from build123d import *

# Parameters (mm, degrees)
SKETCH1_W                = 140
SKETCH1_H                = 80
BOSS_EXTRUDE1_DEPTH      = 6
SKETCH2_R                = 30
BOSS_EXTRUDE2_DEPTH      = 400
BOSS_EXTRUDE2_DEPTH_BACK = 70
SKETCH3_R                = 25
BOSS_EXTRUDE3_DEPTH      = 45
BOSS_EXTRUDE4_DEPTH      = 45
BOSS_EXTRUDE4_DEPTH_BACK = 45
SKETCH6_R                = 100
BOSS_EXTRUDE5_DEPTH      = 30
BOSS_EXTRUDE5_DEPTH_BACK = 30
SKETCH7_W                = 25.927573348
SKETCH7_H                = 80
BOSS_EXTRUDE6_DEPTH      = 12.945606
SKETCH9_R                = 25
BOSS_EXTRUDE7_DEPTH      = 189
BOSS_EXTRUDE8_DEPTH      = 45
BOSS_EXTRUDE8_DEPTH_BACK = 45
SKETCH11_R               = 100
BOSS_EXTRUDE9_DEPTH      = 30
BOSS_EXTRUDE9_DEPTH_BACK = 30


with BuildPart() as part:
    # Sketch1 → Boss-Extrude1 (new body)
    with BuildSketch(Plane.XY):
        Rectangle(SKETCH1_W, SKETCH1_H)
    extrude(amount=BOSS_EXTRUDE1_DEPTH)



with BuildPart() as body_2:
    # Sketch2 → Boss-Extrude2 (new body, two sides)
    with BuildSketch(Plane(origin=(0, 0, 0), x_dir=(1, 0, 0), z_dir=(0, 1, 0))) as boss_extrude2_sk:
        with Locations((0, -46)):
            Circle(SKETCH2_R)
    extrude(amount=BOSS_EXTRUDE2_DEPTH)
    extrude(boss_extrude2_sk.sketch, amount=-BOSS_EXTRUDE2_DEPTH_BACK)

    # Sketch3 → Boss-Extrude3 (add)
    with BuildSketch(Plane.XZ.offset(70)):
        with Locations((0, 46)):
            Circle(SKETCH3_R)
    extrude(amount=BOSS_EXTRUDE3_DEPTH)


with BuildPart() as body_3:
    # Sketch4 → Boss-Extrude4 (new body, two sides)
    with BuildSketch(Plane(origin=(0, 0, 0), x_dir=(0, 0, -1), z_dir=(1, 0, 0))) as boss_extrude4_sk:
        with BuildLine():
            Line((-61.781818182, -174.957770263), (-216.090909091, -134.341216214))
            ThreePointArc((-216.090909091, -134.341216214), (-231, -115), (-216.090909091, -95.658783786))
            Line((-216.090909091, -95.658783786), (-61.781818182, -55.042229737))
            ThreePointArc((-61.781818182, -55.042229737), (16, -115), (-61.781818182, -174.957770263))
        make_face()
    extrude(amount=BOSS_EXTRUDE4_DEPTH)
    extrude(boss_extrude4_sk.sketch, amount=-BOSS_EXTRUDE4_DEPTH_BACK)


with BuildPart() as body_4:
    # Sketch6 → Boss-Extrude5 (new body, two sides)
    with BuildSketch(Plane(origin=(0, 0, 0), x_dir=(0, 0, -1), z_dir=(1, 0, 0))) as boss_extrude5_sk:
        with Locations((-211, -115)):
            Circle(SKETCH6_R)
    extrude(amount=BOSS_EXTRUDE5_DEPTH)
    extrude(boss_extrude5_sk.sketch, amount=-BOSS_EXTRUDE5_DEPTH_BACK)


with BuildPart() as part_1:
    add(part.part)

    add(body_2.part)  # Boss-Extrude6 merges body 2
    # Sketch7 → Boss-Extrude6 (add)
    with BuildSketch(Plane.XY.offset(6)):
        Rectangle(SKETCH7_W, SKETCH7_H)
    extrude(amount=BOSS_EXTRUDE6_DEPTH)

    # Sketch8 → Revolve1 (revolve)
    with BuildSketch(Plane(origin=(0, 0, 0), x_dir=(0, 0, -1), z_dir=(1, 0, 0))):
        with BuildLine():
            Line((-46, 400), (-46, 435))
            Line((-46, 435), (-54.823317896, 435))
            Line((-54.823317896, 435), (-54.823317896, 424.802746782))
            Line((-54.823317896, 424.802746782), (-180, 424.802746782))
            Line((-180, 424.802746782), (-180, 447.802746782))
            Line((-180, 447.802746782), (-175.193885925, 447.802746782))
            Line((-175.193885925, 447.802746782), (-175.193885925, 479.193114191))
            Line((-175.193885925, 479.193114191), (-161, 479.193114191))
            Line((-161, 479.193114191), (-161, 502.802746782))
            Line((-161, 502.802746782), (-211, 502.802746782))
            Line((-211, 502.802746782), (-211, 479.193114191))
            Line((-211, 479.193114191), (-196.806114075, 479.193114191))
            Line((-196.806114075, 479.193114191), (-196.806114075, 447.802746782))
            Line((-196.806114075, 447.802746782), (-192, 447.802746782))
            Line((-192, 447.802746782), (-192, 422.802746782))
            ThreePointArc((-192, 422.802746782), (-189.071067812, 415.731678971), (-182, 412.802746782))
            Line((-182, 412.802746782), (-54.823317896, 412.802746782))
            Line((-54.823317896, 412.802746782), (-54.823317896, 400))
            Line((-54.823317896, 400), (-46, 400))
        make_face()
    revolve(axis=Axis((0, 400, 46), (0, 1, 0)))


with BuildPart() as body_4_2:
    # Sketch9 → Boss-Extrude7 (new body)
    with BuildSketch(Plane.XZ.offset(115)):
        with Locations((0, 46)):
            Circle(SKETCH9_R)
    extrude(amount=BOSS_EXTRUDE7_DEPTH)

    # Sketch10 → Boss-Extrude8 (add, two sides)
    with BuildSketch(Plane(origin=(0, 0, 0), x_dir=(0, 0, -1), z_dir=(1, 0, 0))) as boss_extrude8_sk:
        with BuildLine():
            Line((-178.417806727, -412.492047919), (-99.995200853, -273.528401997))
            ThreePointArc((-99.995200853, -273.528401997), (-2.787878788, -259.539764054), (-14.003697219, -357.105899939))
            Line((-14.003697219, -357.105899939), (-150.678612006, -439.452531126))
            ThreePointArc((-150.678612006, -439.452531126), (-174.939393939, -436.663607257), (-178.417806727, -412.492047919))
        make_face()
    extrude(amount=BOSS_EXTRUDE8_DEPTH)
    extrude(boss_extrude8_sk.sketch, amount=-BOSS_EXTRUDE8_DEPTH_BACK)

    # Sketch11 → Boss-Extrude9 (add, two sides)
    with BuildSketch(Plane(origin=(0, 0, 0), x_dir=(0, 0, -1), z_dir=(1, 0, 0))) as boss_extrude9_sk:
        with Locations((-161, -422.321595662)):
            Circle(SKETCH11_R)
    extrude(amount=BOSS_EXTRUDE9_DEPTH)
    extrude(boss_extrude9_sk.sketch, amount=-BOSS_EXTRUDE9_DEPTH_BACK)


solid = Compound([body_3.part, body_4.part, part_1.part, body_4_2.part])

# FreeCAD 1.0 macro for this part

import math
import FreeCAD as App
import Part
import Sketcher
from FreeCAD import Vector


def add_polygon(sketch, points):
    """Adds a closed chain of lines whose ends are joined by coincident constraints."""
    first, n = sketch.GeometryCount, len(points)
    for a, b in zip(points, points[1:] + points[:1]):
        sketch.addGeometry(Part.LineSegment(App.Vector(*a, 0), App.Vector(*b, 0)), False)
    for i in range(n):
        sketch.addConstraint(Sketcher.Constraint("Coincident", first + i, 2, first + (i + 1) % n, 1))

doc = App.newDocument("Part")
params = doc.addObject("Spreadsheet::Sheet", "Params")
for row, (alias, value) in enumerate([
    ("sketch1_width", "140 mm"),
    ("sketch1_height", "80 mm"),
    ("pad1_length", "6 mm"),
    ("sketch2_diameter", "60 mm"),
    ("pad2_length", "400 mm"),
    ("pad2_length2", "70 mm"),
    ("sketch3_diameter", "50 mm"),
    ("pad3_length", "45 mm"),
    ("sketch4_radius", "62 mm"),
    ("sketch4_radius2", "20 mm"),
    ("pad4_length", "45 mm"),
    ("pad4_length2", "45 mm"),
    ("sketch5_diameter", "200 mm"),
    ("pad5_length", "30 mm"),
    ("pad5_length2", "30 mm"),
    ("sketch6_height", "80 mm"),
    ("pad6_length", "12.945606 mm"),
    ("sketch7_radius", "10 mm"),
    ("sketch7_width", "35 mm"),
    ("sketch7_width2", "23 mm"),
    ("sketch7_width3", "25 mm"),
    ("sketch7_height", "50 mm"),
    ("revolution_angle", "360 deg"),
    ("sketch8_diameter", "50 mm"),
    ("pad7_length", "189 mm"),
    ("sketch9_radius", "20 mm"),
    ("sketch9_radius2", "62 mm"),
    ("pad8_length", "45 mm"),
    ("pad8_length2", "45 mm"),
    ("sketch10_diameter", "200 mm"),
    ("pad9_length", "30 mm"),
    ("pad9_length2", "30 mm"),
], start=1):
    params.set(f"A{row}", alias)
    params.set(f"B{row}", "=" + value)
    params.setAlias(f"B{row}", alias)

body = doc.addObject("PartDesign::Body", "Body")

# Sketch on XY plane
sketch1 = body.newObject("Sketcher::SketchObject", "Sketch")
sketch1.AttachmentSupport = (doc.getObject("XY_Plane"), [""])
sketch1.MapMode = "FlatFace"
add_polygon(sketch1, [(-70, 40), (-70, -40), (70, -40), (70, 40)])  # lines 0-3
sketch1.addConstraint([
    Sketcher.Constraint("Vertical", 0),
    Sketcher.Constraint("Horizontal", 1),
    Sketcher.Constraint("Vertical", 2),
    Sketcher.Constraint("Horizontal", 3),
    Sketcher.Constraint("Symmetric", 0, 2, 2, 2, -1, 1),
    Sketcher.Constraint("DistanceX", 1, 1, 1, 2, 140.0),
    Sketcher.Constraint("DistanceY", 0, 2, 0, 1, 80.0),
])
sketch1.setExpression("Constraints[9]", "Params.sketch1_width")
sketch1.setExpression("Constraints[10]", "Params.sketch1_height")
pad1 = body.newObject("PartDesign::Pad", "Pad")
pad1.Profile = sketch1
pad1.setExpression("Length", "Params.pad1_length")
body2 = doc.addObject("PartDesign::Body", "Body001")

# Sketch on XZ plane
sketch2 = body2.newObject("Sketcher::SketchObject", "Sketch001")
sketch2.AttachmentSupport = (doc.getObject("XZ_Plane001"), [""])
sketch2.MapMode = "FlatFace"
sketch2.addGeometry(Part.Circle(Vector(0, 46, 0), Vector(0, 0, 1), 30), False)
sketch2.addConstraint([
    Sketcher.Constraint("PointOnObject", 0, 3, -2),
    Sketcher.Constraint("Diameter", 0, 60.0),
    Sketcher.Constraint("DistanceY", -1, 1, 0, 3, 46.0),
])
sketch2.setExpression("Constraints[1]", "Params.sketch2_diameter")
pad2 = body2.newObject("PartDesign::Pad", "Pad001")
pad2.Profile = sketch2
pad2.Type = "TwoLengths"
pad2.setExpression("Length", "Params.pad2_length")
pad2.setExpression("Length2", "Params.pad2_length2")
pad2.Reversed = True

# Sketch on XZ plane
sketch3 = body2.newObject("Sketcher::SketchObject", "Sketch002")
sketch3.AttachmentSupport = (doc.getObject("XZ_Plane001"), [""])
sketch3.MapMode = "FlatFace"
sketch3.AttachmentOffset = App.Placement(Vector(0, 0, 70), App.Rotation())
sketch3.addGeometry(Part.Circle(Vector(0, 46, 0), Vector(0, 0, 1), 25), False)
sketch3.addConstraint([
    Sketcher.Constraint("PointOnObject", 0, 3, -2),
    Sketcher.Constraint("Diameter", 0, 50.0),
    Sketcher.Constraint("DistanceY", -1, 1, 0, 3, 46.0),
])
sketch3.setExpression("Constraints[1]", "Params.sketch3_diameter")
pad3 = body2.newObject("PartDesign::Pad", "Pad002")
pad3.Profile = sketch3
pad3.setExpression("Length", "Params.pad3_length")
body3 = doc.addObject("PartDesign::Body", "Body002")

# Sketch on YZ plane
sketch4 = body3.newObject("Sketcher::SketchObject", "Sketch003")
sketch4.AttachmentSupport = (doc.getObject("YZ_Plane002"), [""])
sketch4.MapMode = "FlatFace"
sketch4.addGeometry([
    Part.LineSegment(Vector(-134.341216, 216.090909, 0), Vector(-174.95777, 61.781818, 0)),
    Part.ArcOfCircle(Part.Circle(Vector(-115, 46, 0), Vector(0, 0, 1), 62), math.radians(165.253347), math.radians(374.746653)),
    Part.LineSegment(Vector(-55.04223, 61.781818, 0), Vector(-95.658784, 216.090909, 0)),
    Part.ArcOfCircle(Part.Circle(Vector(-115, 211, 0), Vector(0, 0, 1), 20), math.radians(14.746653), math.radians(165.253347)),
], False)
sketch4.addConstraint([
    Sketcher.Constraint("Tangent", 0, 2, 1, 1),
    Sketcher.Constraint("Tangent", 1, 2, 2, 1),
    Sketcher.Constraint("Tangent", 2, 2, 3, 1),
    Sketcher.Constraint("Tangent", 3, 2, 0, 1),
    Sketcher.Constraint("Horizontal", 0, 2, 1, 2),
    Sketcher.Constraint("Radius", 1, 62.0),
    Sketcher.Constraint("Radius", 3, 20.0),
    Sketcher.Constraint("DistanceX", 1, 3, -1, 1, 115.0),
    Sketcher.Constraint("DistanceY", -1, 1, 1, 3, 46.0),
    Sketcher.Constraint("DistanceY", -1, 1, 3, 3, 211.0),
])
sketch4.setExpression("Constraints[5]", "Params.sketch4_radius")
sketch4.setExpression("Constraints[6]", "Params.sketch4_radius2")
pad4 = body3.newObject("PartDesign::Pad", "Pad003")
pad4.Profile = sketch4
pad4.Type = "TwoLengths"
pad4.setExpression("Length", "Params.pad4_length")
pad4.setExpression("Length2", "Params.pad4_length2")
body4 = doc.addObject("PartDesign::Body", "Body003")

# Sketch on YZ plane
sketch5 = body4.newObject("Sketcher::SketchObject", "Sketch004")
sketch5.AttachmentSupport = (doc.getObject("YZ_Plane003"), [""])
sketch5.MapMode = "FlatFace"
sketch5.addGeometry(Part.Circle(Vector(-115, 211, 0), Vector(0, 0, 1), 100), False)
sketch5.addConstraint([
    Sketcher.Constraint("Diameter", 0, 200.0),
    Sketcher.Constraint("DistanceX", 0, 3, -1, 1, 115.0),
    Sketcher.Constraint("DistanceY", -1, 1, 0, 3, 211.0),
])
sketch5.setExpression("Constraints[0]", "Params.sketch5_diameter")
pad5 = body4.newObject("PartDesign::Pad", "Pad004")
pad5.Profile = sketch5
pad5.Type = "TwoLengths"
pad5.setExpression("Length", "Params.pad5_length")
pad5.setExpression("Length2", "Params.pad5_length2")
body.AllowCompound = True
doc.recompute()

boolean = body.newObject("PartDesign::Boolean", "Boolean")
boolean.Type = "Fuse"
boolean.addObjects([body2])

# Sketch on XY plane
sketch6 = body.newObject("Sketcher::SketchObject", "Sketch005")
sketch6.AttachmentSupport = (doc.getObject("XY_Plane"), [""])
sketch6.MapMode = "FlatFace"
sketch6.AttachmentOffset = App.Placement(Vector(0, 0, 6), App.Rotation())
add_polygon(sketch6, [(-12.963787, 40), (-12.963787, -40), (12.963787, -40), (12.963787, 40)])  # lines 0-3
sketch6.addConstraint([
    Sketcher.Constraint("Vertical", 0),
    Sketcher.Constraint("Horizontal", 1),
    Sketcher.Constraint("Vertical", 2),
    Sketcher.Constraint("Horizontal", 3),
    Sketcher.Constraint("Symmetric", 0, 2, 2, 2, -1, 1),
    Sketcher.Constraint("DistanceY", 0, 2, 0, 1, 80.0),
    Sketcher.Constraint("DistanceX", 1, 1, 1, 2, 25.927573),
])
sketch6.setExpression("Constraints[9]", "Params.sketch6_height")
pad6 = body.newObject("PartDesign::Pad", "Pad005")
pad6.Profile = sketch6
pad6.setExpression("Length", "Params.pad6_length")

# Sketch on YZ plane
sketch7 = body.newObject("Sketcher::SketchObject", "Sketch006")
sketch7.AttachmentSupport = (doc.getObject("YZ_Plane"), [""])
sketch7.MapMode = "FlatFace"
sketch7.addGeometry([
    Part.LineSegment(Vector(400, 46, 0), Vector(435, 46, 0)),  # 0
    Part.LineSegment(Vector(435, 46, 0), Vector(435, 54.823318, 0)),  # 1
    Part.LineSegment(Vector(435, 54.823318, 0), Vector(424.802747, 54.823318, 0)),  # 2
    Part.LineSegment(Vector(424.802747, 54.823318, 0), Vector(424.802747, 180, 0)),  # 3
    Part.LineSegment(Vector(424.802747, 180, 0), Vector(447.802747, 180, 0)),  # 4
    Part.LineSegment(Vector(447.802747, 180, 0), Vector(447.802747, 175.193886, 0)),  # 5
    Part.LineSegment(Vector(447.802747, 175.193886, 0), Vector(479.193114, 175.193886, 0)),  # 6
    Part.LineSegment(Vector(479.193114, 175.193886, 0), Vector(479.193114, 161, 0)),  # 7
    Part.LineSegment(Vector(479.193114, 161, 0), Vector(502.802747, 161, 0)),  # 8
    Part.LineSegment(Vector(502.802747, 161, 0), Vector(502.802747, 211, 0)),  # 9
    Part.LineSegment(Vector(502.802747, 211, 0), Vector(479.193114, 211, 0)),  # 10
    Part.LineSegment(Vector(479.193114, 211, 0), Vector(479.193114, 196.806114, 0)),  # 11
    Part.LineSegment(Vector(479.193114, 196.806114, 0), Vector(447.802747, 196.806114, 0)),  # 12
    Part.LineSegment(Vector(447.802747, 196.806114, 0), Vector(447.802747, 192, 0)),  # 13
    Part.LineSegment(Vector(447.802747, 192, 0), Vector(422.802747, 192, 0)),  # 14
    Part.ArcOfCircle(Part.Circle(Vector(422.802747, 182, 0), Vector(0, 0, 1), 10), math.radians(90), math.radians(180)),  # 15
    Part.LineSegment(Vector(412.802747, 182, 0), Vector(412.802747, 54.823318, 0)),  # 16
    Part.LineSegment(Vector(412.802747, 54.823318, 0), Vector(400, 54.823318, 0)),  # 17
    Part.LineSegment(Vector(400, 54.823318, 0), Vector(400, 46, 0)),  # 18
], False)
sketch7.addGeometry(Part.LineSegment(Vector(400, 46, 0), Vector(502.802747, 46, 0)), True)  # axis
sketch7.addConstraint([
    Sketcher.Constraint("Coincident", 0, 2, 1, 1),
    Sketcher.Constraint("Coincident", 1, 2, 2, 1),
    Sketcher.Constraint("Coincident", 2, 2, 3, 1),
    Sketcher.Constraint("Coincident", 3, 2, 4, 1),
    Sketcher.Constraint("Coincident", 4, 2, 5, 1),
    Sketcher.Constraint("Coincident", 5, 2, 6, 1),
    Sketcher.Constraint("Coincident", 6, 2, 7, 1),
    Sketcher.Constraint("Coincident", 7, 2, 8, 1),
    Sketcher.Constraint("Coincident", 8, 2, 9, 1),
    Sketcher.Constraint("Coincident", 9, 2, 10, 1),
    Sketcher.Constraint("Coincident", 10, 2, 11, 1),
    Sketcher.Constraint("Coincident", 11, 2, 12, 1),
    Sketcher.Constraint("Coincident", 12, 2, 13, 1),
    Sketcher.Constraint("Coincident", 13, 2, 14, 1),
    Sketcher.Constraint("Tangent", 14, 2, 15, 1),
    Sketcher.Constraint("Tangent", 15, 2, 16, 1),
    Sketcher.Constraint("Coincident", 16, 2, 17, 1),
    Sketcher.Constraint("Coincident", 17, 2, 18, 1),
    Sketcher.Constraint("Coincident", 18, 2, 0, 1),
    Sketcher.Constraint("Horizontal", 0),
    Sketcher.Constraint("Vertical", 1),
    Sketcher.Constraint("Horizontal", 2),
    Sketcher.Constraint("Vertical", 3),
    Sketcher.Constraint("Horizontal", 4),
    Sketcher.Constraint("Vertical", 5),
    Sketcher.Constraint("Horizontal", 6),
    Sketcher.Constraint("Vertical", 7),
    Sketcher.Constraint("Horizontal", 8),
    Sketcher.Constraint("Vertical", 9),
    Sketcher.Constraint("Horizontal", 10),
    Sketcher.Constraint("Vertical", 11),
    Sketcher.Constraint("Horizontal", 12),
    Sketcher.Constraint("Vertical", 13),
    Sketcher.Constraint("Horizontal", 14),
    Sketcher.Constraint("Vertical", 16),
    Sketcher.Constraint("Horizontal", 17),
    Sketcher.Constraint("Vertical", 18),
    Sketcher.Constraint("Horizontal", 19),
    Sketcher.Constraint("Coincident", 19, 1, 18, 2),
    Sketcher.Constraint("Horizontal", 2, 2, 16, 2),
    Sketcher.Constraint("Vertical", 7, 2, 10, 2),
    Sketcher.Constraint("Vertical", 5, 2, 12, 2),
    Sketcher.Constraint("Vertical", 9, 2, 19, 2),
    Sketcher.Constraint("Equal", 7, 11),
    Sketcher.Constraint("Equal", 5, 13),
    Sketcher.Constraint("Radius", 15, 10.0),
    Sketcher.Constraint("DistanceX", 0, 1, 0, 2, 35.0),
    Sketcher.Constraint("DistanceX", 4, 1, 4, 2, 23.0),
    Sketcher.Constraint("DistanceX", 14, 2, 14, 1, 25.0),
    Sketcher.Constraint("DistanceY", 9, 1, 9, 2, 50.0),
    Sketcher.Constraint("DistanceY", -1, 1, 15, 3, 182.0),
    Sketcher.Constraint("DistanceX", -1, 1, 0, 2, 435.0),
    Sketcher.Constraint("DistanceY", -1, 1, 0, 2, 46.0),
    Sketcher.Constraint("DistanceY", -1, 1, 3, 2, 180.0),
    Sketcher.Constraint("DistanceX", 5, 2, 8, 2, 55.0),
    Sketcher.Constraint("DistanceX", 2, 2, 2, 1, 10.197253),
    Sketcher.Constraint("DistanceX", 6, 1, 6, 2, 31.390367),
    Sketcher.Constraint("DistanceY", 1, 1, 1, 2, 8.823318),
    Sketcher.Constraint("DistanceY", 5, 2, 5, 1, 4.806114),
])
sketch7.setExpression("Constraints[45]", "Params.sketch7_radius")
sketch7.setExpression("Constraints[46]", "Params.sketch7_width")
sketch7.setExpression("Constraints[47]", "Params.sketch7_width2")
sketch7.setExpression("Constraints[48]", "Params.sketch7_width3")
sketch7.setExpression("Constraints[49]", "Params.sketch7_height")
revolution = body.newObject("PartDesign::Revolution", "Revolution")
revolution.Profile = sketch7
revolution.ReferenceAxis = (sketch7, ["Axis0"])
revolution.setExpression("Angle", "Params.revolution_angle")
body5 = doc.addObject("PartDesign::Body", "Body004")

# Sketch on XZ plane
sketch8 = body5.newObject("Sketcher::SketchObject", "Sketch007")
sketch8.AttachmentSupport = (doc.getObject("XZ_Plane004"), [""])
sketch8.MapMode = "FlatFace"
sketch8.AttachmentOffset = App.Placement(Vector(0, 0, 115), App.Rotation())
sketch8.addGeometry(Part.Circle(Vector(0, 46, 0), Vector(0, 0, 1), 25), False)
sketch8.addConstraint([
    Sketcher.Constraint("PointOnObject", 0, 3, -2),
    Sketcher.Constraint("Diameter", 0, 50.0),
    Sketcher.Constraint("DistanceY", -1, 1, 0, 3, 46.0),
])
sketch8.setExpression("Constraints[1]", "Params.sketch8_diameter")
pad7 = body5.newObject("PartDesign::Pad", "Pad006")
pad7.Profile = sketch8
pad7.setExpression("Length", "Params.pad7_length")

# Sketch on YZ plane
sketch9 = body5.newObject("Sketcher::SketchObject", "Sketch008")
sketch9.AttachmentSupport = (doc.getObject("YZ_Plane004"), [""])
sketch9.MapMode = "FlatFace"
sketch9.addGeometry([
    Part.LineSegment(Vector(-273.528402, 99.995201, 0), Vector(-412.492048, 178.417807, 0)),
    Part.ArcOfCircle(Part.Circle(Vector(-422.321596, 161, 0), Vector(0, 0, 1), 20), math.radians(60.562268), math.radians(211.068962)),
    Part.LineSegment(Vector(-439.452531, 150.678612, 0), Vector(-357.1059, 14.003697, 0)),
    Part.ArcOfCircle(Part.Circle(Vector(-304, 46, 0), Vector(0, 0, 1), 62), math.radians(-148.931038), math.radians(60.562268)),
], False)
sketch9.addConstraint([
    Sketcher.Constraint("Tangent", 0, 2, 1, 1),
    Sketcher.Constraint("Tangent", 1, 2, 2, 1),
    Sketcher.Constraint("Tangent", 2, 2, 3, 1),
    Sketcher.Constraint("Tangent", 3, 2, 0, 1),
    Sketcher.Constraint("Radius", 1, 20.0),
    Sketcher.Constraint("Radius", 3, 62.0),
    Sketcher.Constraint("DistanceY", -1, 1, 1, 3, 161.0),
    Sketcher.Constraint("DistanceX", 3, 3, -1, 1, 304.0),
    Sketcher.Constraint("DistanceY", -1, 1, 3, 3, 46.0),
    Sketcher.Constraint("DistanceX", 2, 2, -1, 1, 357.1059),
])
sketch9.setExpression("Constraints[4]", "Params.sketch9_radius")
sketch9.setExpression("Constraints[5]", "Params.sketch9_radius2")
pad8 = body5.newObject("PartDesign::Pad", "Pad007")
pad8.Profile = sketch9
pad8.Type = "TwoLengths"
pad8.setExpression("Length", "Params.pad8_length")
pad8.setExpression("Length2", "Params.pad8_length2")

# Sketch on YZ plane
sketch10 = body5.newObject("Sketcher::SketchObject", "Sketch009")
sketch10.AttachmentSupport = (doc.getObject("YZ_Plane004"), [""])
sketch10.MapMode = "FlatFace"
sketch10.addGeometry(Part.Circle(Vector(-422.321596, 161, 0), Vector(0, 0, 1), 100), False)
sketch10.addConstraint([
    Sketcher.Constraint("Diameter", 0, 200.0),
    Sketcher.Constraint("DistanceY", -1, 1, 0, 3, 161.0),
    Sketcher.Constraint("DistanceX", 0, 3, -1, 1, 422.321596),
])
sketch10.setExpression("Constraints[0]", "Params.sketch10_diameter")
pad9 = body5.newObject("PartDesign::Pad", "Pad008")
pad9.Profile = sketch10
pad9.Type = "TwoLengths"
pad9.setExpression("Length", "Params.pad9_length")
pad9.setExpression("Length2", "Params.pad9_length2")

doc.recompute()
